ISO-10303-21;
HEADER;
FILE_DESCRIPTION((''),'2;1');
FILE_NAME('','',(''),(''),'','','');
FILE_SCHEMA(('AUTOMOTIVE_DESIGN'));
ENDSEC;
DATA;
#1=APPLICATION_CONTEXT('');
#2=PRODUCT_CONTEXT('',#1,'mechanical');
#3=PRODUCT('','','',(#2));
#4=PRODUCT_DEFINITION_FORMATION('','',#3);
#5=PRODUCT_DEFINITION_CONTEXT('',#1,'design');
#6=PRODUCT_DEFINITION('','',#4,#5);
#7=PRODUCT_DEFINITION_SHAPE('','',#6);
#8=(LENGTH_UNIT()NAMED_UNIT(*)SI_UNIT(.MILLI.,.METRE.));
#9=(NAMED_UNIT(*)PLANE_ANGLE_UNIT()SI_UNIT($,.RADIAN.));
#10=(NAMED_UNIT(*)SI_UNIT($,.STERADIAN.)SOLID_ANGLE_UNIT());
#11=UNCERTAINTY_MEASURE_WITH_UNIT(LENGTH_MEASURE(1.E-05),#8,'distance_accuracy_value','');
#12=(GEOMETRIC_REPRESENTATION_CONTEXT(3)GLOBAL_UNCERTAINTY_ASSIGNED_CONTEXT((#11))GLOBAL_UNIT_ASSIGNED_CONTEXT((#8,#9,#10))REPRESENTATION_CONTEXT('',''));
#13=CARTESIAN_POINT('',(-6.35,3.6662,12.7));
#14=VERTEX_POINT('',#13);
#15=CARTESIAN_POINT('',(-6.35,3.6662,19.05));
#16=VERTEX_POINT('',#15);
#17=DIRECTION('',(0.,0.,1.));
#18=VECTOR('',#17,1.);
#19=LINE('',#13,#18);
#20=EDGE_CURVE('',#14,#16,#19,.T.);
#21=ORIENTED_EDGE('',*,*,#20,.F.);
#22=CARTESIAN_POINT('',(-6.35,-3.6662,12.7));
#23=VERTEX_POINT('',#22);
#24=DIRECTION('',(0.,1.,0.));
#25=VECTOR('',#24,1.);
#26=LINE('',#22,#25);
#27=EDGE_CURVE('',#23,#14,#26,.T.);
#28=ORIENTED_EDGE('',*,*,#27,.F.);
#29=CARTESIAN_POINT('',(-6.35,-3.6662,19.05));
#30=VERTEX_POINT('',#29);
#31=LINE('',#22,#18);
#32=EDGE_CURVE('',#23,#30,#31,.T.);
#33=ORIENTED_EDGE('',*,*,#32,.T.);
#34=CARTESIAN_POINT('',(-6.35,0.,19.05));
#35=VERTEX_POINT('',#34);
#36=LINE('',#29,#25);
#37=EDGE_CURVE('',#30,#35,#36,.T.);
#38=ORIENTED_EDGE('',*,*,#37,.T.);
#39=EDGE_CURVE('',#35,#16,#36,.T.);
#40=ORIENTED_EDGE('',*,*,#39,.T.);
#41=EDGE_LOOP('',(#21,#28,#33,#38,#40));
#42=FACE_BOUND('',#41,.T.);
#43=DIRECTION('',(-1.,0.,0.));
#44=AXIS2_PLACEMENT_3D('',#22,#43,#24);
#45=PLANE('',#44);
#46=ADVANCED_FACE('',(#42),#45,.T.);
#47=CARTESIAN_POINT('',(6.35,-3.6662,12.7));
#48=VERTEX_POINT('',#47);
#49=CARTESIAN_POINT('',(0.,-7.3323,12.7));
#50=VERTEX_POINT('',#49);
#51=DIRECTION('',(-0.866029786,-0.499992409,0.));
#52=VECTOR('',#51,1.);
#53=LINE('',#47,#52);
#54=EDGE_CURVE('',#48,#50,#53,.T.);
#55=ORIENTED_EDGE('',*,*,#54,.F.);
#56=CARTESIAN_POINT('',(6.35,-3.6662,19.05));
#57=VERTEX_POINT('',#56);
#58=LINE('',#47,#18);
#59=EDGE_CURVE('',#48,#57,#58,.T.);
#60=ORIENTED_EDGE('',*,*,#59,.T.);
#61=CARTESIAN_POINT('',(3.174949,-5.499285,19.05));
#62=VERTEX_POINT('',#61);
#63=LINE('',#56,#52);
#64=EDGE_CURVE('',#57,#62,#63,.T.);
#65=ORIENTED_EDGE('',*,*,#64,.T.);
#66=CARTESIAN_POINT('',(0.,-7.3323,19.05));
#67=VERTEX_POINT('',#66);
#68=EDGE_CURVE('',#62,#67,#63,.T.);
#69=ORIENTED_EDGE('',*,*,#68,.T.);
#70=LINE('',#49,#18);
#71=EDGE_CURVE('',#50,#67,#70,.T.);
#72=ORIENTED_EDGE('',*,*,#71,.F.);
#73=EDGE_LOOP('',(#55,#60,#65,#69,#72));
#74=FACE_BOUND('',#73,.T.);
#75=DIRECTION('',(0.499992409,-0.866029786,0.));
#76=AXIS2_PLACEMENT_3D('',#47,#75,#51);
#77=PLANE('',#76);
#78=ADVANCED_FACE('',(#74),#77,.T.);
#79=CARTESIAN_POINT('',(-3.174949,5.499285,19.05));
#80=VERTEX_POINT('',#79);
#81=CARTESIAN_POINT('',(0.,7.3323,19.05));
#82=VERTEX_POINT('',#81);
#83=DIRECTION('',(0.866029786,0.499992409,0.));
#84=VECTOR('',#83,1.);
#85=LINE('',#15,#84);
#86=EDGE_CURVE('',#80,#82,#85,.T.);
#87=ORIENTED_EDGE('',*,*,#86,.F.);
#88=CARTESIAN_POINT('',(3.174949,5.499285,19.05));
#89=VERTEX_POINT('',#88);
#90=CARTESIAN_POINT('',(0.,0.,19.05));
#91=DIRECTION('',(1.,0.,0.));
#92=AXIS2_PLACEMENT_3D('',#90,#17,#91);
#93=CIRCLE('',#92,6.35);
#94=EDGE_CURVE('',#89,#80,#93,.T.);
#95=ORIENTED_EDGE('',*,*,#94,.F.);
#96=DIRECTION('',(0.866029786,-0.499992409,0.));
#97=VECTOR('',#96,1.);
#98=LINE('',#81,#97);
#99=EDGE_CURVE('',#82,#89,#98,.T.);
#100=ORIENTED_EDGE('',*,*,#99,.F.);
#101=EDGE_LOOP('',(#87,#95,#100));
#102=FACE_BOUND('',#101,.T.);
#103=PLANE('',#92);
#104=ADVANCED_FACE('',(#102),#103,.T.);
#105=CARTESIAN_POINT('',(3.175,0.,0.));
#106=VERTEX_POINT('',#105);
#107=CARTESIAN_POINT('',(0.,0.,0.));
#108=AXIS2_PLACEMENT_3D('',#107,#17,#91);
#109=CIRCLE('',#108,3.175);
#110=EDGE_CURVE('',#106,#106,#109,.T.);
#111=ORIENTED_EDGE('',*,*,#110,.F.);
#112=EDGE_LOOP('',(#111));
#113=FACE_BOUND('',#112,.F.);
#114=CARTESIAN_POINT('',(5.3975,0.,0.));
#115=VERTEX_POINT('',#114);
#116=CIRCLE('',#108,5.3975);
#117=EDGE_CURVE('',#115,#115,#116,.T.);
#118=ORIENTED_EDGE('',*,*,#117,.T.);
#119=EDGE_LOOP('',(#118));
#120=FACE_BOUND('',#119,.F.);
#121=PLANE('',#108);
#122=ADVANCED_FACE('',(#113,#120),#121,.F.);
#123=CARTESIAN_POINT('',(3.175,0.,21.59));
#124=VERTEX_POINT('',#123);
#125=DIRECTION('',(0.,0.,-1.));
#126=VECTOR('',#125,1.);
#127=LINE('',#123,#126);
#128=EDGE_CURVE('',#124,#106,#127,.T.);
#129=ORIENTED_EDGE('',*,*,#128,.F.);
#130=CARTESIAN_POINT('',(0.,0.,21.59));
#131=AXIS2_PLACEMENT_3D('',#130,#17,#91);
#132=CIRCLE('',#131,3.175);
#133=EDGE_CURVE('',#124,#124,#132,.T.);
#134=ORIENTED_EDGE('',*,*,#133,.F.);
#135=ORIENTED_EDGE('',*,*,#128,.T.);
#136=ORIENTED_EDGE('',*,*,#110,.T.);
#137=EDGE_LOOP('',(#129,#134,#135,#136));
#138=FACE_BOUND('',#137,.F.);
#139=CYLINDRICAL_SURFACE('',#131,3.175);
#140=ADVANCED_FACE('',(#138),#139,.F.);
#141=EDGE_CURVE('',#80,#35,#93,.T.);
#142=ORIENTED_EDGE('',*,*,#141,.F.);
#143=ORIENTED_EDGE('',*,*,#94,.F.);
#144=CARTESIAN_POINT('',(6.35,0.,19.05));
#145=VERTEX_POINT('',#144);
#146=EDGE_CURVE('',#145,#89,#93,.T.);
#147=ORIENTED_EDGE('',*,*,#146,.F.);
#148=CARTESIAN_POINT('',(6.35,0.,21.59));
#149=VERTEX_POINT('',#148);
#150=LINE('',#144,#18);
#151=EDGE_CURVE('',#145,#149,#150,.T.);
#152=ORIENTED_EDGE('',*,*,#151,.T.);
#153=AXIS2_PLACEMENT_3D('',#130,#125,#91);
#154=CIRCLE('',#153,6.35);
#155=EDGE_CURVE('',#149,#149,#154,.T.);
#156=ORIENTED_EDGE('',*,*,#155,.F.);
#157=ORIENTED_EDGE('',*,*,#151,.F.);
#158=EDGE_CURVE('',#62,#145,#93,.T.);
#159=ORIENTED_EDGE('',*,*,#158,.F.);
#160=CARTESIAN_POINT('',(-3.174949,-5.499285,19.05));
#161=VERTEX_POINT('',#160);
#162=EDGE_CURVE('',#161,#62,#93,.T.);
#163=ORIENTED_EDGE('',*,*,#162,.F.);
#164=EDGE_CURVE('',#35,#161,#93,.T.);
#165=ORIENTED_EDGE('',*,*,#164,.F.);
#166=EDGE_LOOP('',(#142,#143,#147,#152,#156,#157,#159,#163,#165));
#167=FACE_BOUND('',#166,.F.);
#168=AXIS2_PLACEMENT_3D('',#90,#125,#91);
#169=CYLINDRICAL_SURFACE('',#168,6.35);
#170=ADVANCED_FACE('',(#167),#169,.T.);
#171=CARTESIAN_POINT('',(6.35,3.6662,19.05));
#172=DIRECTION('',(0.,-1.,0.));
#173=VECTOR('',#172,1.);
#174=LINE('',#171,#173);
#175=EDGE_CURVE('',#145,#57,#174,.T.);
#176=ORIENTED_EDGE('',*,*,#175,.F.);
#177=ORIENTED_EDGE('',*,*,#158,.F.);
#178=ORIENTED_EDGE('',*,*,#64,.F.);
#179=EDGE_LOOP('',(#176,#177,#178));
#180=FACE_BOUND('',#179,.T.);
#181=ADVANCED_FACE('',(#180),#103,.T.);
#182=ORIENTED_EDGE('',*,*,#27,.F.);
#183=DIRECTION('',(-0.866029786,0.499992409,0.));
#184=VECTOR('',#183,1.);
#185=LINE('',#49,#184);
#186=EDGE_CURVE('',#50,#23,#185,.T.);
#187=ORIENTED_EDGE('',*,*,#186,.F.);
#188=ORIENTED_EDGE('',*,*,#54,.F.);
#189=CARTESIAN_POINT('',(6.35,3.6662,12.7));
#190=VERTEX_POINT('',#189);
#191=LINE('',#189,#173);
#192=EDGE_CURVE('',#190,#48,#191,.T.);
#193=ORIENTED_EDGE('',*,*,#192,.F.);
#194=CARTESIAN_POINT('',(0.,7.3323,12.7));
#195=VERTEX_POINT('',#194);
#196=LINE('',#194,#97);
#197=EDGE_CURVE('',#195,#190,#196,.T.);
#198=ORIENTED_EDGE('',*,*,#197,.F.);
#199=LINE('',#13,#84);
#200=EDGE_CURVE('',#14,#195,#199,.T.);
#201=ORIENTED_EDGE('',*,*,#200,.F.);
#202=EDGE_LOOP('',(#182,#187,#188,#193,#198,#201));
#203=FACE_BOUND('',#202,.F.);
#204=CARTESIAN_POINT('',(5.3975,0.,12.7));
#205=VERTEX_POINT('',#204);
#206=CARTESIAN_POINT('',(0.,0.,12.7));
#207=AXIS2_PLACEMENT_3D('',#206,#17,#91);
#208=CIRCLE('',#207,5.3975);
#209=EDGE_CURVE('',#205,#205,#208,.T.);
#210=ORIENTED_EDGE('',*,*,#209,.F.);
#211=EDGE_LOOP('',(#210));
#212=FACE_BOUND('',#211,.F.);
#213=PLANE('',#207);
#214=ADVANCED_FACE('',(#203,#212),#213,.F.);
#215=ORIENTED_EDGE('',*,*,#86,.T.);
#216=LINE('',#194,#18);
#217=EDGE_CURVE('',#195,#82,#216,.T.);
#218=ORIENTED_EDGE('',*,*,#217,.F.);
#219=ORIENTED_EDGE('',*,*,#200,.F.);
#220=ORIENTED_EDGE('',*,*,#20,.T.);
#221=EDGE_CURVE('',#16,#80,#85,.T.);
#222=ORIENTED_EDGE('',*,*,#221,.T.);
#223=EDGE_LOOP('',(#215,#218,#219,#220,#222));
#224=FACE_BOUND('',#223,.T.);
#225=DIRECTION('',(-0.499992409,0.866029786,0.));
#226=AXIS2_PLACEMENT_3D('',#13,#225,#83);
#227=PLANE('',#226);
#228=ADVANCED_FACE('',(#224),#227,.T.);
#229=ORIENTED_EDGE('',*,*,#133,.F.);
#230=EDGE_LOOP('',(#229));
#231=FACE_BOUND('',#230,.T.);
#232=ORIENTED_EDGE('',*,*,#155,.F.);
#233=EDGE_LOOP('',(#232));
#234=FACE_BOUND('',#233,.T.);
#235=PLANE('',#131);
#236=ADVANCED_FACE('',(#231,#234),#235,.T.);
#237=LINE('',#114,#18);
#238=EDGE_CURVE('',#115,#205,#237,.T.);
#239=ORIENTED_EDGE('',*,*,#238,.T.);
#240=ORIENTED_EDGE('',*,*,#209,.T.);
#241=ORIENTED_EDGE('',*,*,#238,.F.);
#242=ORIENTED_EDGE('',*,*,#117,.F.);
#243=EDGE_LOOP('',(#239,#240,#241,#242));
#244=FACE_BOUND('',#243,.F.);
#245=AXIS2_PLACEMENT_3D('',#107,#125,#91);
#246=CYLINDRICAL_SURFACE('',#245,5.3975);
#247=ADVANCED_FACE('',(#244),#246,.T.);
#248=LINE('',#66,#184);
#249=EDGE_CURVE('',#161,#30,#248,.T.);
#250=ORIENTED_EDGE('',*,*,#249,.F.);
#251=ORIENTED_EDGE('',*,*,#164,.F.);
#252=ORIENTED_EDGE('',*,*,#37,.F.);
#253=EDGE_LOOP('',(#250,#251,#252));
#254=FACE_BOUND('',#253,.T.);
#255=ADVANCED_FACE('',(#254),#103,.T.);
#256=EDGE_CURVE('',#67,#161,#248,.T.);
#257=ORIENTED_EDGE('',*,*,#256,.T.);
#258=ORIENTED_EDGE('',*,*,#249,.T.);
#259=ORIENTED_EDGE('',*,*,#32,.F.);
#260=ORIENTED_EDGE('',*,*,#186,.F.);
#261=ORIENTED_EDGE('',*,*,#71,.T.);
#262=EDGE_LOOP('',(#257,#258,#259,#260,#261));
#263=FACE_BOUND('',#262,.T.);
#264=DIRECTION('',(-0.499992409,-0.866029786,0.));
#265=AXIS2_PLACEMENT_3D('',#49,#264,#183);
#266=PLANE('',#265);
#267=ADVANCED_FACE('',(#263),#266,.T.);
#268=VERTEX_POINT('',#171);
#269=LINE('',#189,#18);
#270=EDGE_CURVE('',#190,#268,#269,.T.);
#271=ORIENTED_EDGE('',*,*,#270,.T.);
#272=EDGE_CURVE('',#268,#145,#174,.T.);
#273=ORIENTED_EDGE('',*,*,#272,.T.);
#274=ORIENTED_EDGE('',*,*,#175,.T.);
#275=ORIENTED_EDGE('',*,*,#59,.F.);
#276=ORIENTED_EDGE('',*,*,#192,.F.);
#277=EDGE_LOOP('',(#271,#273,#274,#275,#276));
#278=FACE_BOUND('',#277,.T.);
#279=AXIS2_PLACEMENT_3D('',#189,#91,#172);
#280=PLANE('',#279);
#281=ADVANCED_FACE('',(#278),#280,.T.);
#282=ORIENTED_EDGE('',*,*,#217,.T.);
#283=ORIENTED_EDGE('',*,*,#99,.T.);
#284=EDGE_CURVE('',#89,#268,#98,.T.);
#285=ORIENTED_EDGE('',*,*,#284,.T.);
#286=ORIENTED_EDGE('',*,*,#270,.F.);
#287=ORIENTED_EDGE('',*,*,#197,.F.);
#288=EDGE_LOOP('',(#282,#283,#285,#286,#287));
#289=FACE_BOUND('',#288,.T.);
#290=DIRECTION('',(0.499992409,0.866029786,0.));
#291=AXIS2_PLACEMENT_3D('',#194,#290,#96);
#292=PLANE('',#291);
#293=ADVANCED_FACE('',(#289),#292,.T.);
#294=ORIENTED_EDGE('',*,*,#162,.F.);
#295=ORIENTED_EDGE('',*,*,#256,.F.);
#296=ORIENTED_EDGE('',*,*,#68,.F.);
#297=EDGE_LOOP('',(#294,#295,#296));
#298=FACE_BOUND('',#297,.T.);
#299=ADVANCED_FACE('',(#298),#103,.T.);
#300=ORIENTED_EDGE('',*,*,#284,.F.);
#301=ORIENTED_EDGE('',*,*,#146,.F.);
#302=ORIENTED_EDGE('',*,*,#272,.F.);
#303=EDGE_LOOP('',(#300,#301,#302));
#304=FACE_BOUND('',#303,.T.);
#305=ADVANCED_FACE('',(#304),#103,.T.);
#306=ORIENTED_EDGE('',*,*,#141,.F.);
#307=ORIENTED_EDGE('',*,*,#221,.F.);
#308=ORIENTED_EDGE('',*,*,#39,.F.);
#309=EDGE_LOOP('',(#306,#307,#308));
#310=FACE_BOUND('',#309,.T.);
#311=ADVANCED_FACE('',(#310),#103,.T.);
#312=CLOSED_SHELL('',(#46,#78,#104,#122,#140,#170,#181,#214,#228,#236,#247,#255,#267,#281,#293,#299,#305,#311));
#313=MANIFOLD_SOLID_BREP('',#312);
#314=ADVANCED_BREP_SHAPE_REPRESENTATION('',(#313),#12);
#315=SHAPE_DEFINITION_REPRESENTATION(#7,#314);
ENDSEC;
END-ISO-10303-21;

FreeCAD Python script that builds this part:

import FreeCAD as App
import Part
import Sketcher

V = App.Vector
Q = App.Units.Quantity

doc = App.newDocument("Part")
body = doc.addObject("PartDesign::Body", "Body")

# Sketch on XY plane
sketch1 = doc.addObject("Sketcher::SketchObject", "Sketch")
body.addObject(sketch1)
sketch1.AttachmentSupport = (doc.XY_Plane, [""])
sketch1.MapMode = "FlatFace"
sketch1.addGeometry(Part.Circle(V(0, 0, 0), V(0, 0, 1), 5), False)
sketch1.addConstraint(Sketcher.Constraint("Coincident", 0, 3, -1, 1))
sketch1.addConstraint(Sketcher.Constraint("Diameter", 0, Q("0.425 in")))
pad1 = doc.addObject("PartDesign::Pad", "Pad")
body.addObject(pad1)
pad1.Profile = sketch1
pad1.Length = Q("0.5 in")

# Sketch on XY plane
sketch2 = doc.addObject("Sketcher::SketchObject", "Sketch001")
body.addObject(sketch2)
sketch2.AttachmentSupport = (doc.XY_Plane, [""])
sketch2.MapMode = "FlatFace"
sketch2.AttachmentOffset = App.Placement(V(0, 0, 0.5 * 25.4), App.Rotation())
sketch2.addGeometry(Part.LineSegment(V(6, 4, 0), V(0, 7, 0)), False)
sketch2.addGeometry(Part.LineSegment(V(0, 7, 0), V(-6, 4, 0)), False)
sketch2.addGeometry(Part.LineSegment(V(-6, 4, 0), V(-6, -4, 0)), False)
sketch2.addGeometry(Part.LineSegment(V(-6, -4, 0), V(0, -7, 0)), False)
sketch2.addGeometry(Part.LineSegment(V(0, -7, 0), V(6, -4, 0)), False)
sketch2.addGeometry(Part.LineSegment(V(6, -4, 0), V(6, 4, 0)), False)
sketch2.addConstraint(Sketcher.Constraint("Coincident", 0, 2, 1, 1))
sketch2.addConstraint(Sketcher.Constraint("Coincident", 1, 2, 2, 1))
sketch2.addConstraint(Sketcher.Constraint("Coincident", 2, 2, 3, 1))
sketch2.addConstraint(Sketcher.Constraint("Coincident", 3, 2, 4, 1))
sketch2.addConstraint(Sketcher.Constraint("Coincident", 4, 2, 5, 1))
sketch2.addConstraint(Sketcher.Constraint("Coincident", 5, 2, 0, 1))
sketch2.addConstraint(Sketcher.Constraint("Vertical", 2))
sketch2.addConstraint(Sketcher.Constraint("Vertical", 5))
sketch2.addConstraint(Sketcher.Constraint("Symmetric", 0, 2, 3, 2, -1, 1))
sketch2.addConstraint(Sketcher.Constraint("Symmetric", 1, 2, 4, 2, -1, 1))
sketch2.addConstraint(Sketcher.Constraint("PointOnObject", 0, 2, -2))
sketch2.addConstraint(Sketcher.Constraint("Parallel", 0, 3))
sketch2.addConstraint(Sketcher.Constraint("Horizontal", 2, 2, 4, 2))
sketch2.addConstraint(Sketcher.Constraint("DistanceX", 2, 2, 4, 2, Q("0.5 in")))
sketch2.addConstraint(Sketcher.Constraint("Angle", 0, Q("150.0005 deg")))
sketch2.addConstraint(Sketcher.Constraint("DistanceY", 2, 2, 0, 2, Q("0.433 in")))
pad2 = doc.addObject("PartDesign::Pad", "Pad001")
body.addObject(pad2)
pad2.Profile = sketch2
pad2.Length = Q("0.25 in")

# Sketch on XY plane
sketch3 = doc.addObject("Sketcher::SketchObject", "Sketch002")
body.addObject(sketch3)
sketch3.AttachmentSupport = (doc.XY_Plane, [""])
sketch3.MapMode = "FlatFace"
sketch3.AttachmentOffset = App.Placement(V(0, 0, 0.75 * 25.4), App.Rotation())
sketch3.addGeometry(Part.Circle(V(0, 0, 0), V(0, 0, 1), 6), False)
sketch3.addConstraint(Sketcher.Constraint("Coincident", 0, 3, -1, 1))
sketch3.addConstraint(Sketcher.Constraint("Diameter", 0, Q("0.5 in")))
pad3 = doc.addObject("PartDesign::Pad", "Pad002")
body.addObject(pad3)
pad3.Profile = sketch3
pad3.Length = Q("0.1 in")

# Sketch on XY plane
sketch4 = doc.addObject("Sketcher::SketchObject", "Sketch003")
body.addObject(sketch4)
sketch4.AttachmentSupport = (doc.XY_Plane, [""])
sketch4.MapMode = "FlatFace"
sketch4.AttachmentOffset = App.Placement(V(0, 0, 0.85 * 25.4), App.Rotation())
sketch4.addGeometry(Part.Circle(V(0, 0, 0), V(0, 0, 1), 3.2), False)
sketch4.addConstraint(Sketcher.Constraint("Coincident", 0, 3, -1, 1))
sketch4.addConstraint(Sketcher.Constraint("Diameter", 0, Q("0.25 in")))
pocket1 = doc.addObject("PartDesign::Pocket", "Pocket")
body.addObject(pocket1)
pocket1.Profile = sketch4
pocket1.Type = "ThroughAll"

doc.recompute()
